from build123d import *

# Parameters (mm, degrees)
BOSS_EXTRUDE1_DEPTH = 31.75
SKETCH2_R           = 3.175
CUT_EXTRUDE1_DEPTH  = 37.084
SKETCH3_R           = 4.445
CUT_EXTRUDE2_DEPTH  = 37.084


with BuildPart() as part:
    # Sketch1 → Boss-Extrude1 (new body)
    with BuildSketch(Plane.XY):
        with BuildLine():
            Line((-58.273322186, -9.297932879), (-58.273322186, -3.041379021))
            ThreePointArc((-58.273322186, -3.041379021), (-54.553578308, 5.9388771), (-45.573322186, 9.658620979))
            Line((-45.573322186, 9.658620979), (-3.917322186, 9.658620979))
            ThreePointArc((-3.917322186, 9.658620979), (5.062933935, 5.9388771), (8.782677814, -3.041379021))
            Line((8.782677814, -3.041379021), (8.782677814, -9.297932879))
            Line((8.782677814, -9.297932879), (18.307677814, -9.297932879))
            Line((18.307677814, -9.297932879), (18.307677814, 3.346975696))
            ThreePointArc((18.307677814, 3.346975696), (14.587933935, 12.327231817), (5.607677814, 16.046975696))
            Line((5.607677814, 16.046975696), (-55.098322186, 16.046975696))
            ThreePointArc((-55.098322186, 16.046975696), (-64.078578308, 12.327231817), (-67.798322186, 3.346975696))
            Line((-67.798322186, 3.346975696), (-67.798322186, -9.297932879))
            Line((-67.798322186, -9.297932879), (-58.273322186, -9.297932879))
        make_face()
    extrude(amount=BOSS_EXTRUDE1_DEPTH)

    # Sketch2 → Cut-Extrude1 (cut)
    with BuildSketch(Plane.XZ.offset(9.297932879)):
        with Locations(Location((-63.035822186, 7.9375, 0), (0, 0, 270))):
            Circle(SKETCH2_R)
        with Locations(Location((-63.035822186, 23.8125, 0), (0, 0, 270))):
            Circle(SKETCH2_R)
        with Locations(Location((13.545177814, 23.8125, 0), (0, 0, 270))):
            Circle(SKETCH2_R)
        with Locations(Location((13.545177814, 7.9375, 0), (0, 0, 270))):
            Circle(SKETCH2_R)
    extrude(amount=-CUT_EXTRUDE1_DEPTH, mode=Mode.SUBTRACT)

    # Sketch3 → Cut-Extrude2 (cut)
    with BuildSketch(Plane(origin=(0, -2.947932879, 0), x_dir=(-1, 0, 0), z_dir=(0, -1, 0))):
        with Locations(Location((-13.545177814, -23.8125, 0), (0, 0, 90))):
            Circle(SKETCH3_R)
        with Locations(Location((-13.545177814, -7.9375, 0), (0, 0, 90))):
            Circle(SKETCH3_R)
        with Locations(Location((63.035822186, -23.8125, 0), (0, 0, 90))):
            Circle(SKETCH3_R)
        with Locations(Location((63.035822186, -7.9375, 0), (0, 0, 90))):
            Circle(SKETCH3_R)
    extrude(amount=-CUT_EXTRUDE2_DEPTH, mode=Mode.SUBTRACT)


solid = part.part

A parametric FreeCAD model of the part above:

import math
import FreeCAD as App
import Part
import Sketcher
from FreeCAD import Vector
Q = App.Units.Quantity

doc = App.newDocument("Part")
body = doc.addObject("PartDesign::Body", "Body")

# Sketch on XY plane
sketch1 = body.newObject("Sketcher::SketchObject", "Sketch")
sketch1.AttachmentSupport = (doc.getObject("XY_Plane"), [""])
sketch1.MapMode = "FlatFace"
sketch1.addGeometry([
    Part.LineSegment(Vector(-58, -9, 0), Vector(-58, -3, 0)),  # 0
    Part.ArcOfCircle(Part.Circle(Vector(-46, -3, 0), Vector(0, 0, 1), 13), math.radians(90), math.radians(180)),  # 1
    Part.LineSegment(Vector(-46, 10, 0), Vector(-4, 10, 0)),  # 2
    Part.ArcOfCircle(Part.Circle(Vector(-4, -3, 0), Vector(0, 0, 1), 13), math.radians(0), math.radians(90)),  # 3
    Part.LineSegment(Vector(9, -3, 0), Vector(9, -9, 0)),  # 4
    Part.LineSegment(Vector(9, -9, 0), Vector(18, -9, 0)),  # 5
    Part.LineSegment(Vector(18, -9, 0), Vector(18, 3, 0)),  # 6
    Part.ArcOfCircle(Part.Circle(Vector(6, 3, 0), Vector(0, 0, 1), 13), math.radians(0), math.radians(90)),  # 7
    Part.LineSegment(Vector(6, 16, 0), Vector(-55, 16, 0)),  # 8
    Part.ArcOfCircle(Part.Circle(Vector(-55, 3, 0), Vector(0, 0, 1), 13), math.radians(90), math.radians(180)),  # 9
    Part.LineSegment(Vector(-68, 3, 0), Vector(-68, -9, 0)),  # 10
    Part.LineSegment(Vector(-68, -9, 0), Vector(-58, -9, 0)),  # 11
], False)
sketch1.addConstraint([
    Sketcher.Constraint("Tangent", 0, 2, 1, 2),
    Sketcher.Constraint("Tangent", 1, 1, 2, 1),
    Sketcher.Constraint("Tangent", 2, 2, 3, 2),
    Sketcher.Constraint("Tangent", 3, 1, 4, 1),
    Sketcher.Constraint("Coincident", 4, 2, 5, 1),
    Sketcher.Constraint("Coincident", 5, 2, 6, 1),
    Sketcher.Constraint("Tangent", 6, 2, 7, 1),
    Sketcher.Constraint("Tangent", 7, 2, 8, 1),
    Sketcher.Constraint("Tangent", 8, 2, 9, 1),
    Sketcher.Constraint("Tangent", 9, 2, 10, 1),
    Sketcher.Constraint("Coincident", 10, 2, 11, 1),
    Sketcher.Constraint("Coincident", 11, 2, 0, 1),
    Sketcher.Constraint("Vertical", 0),
    Sketcher.Constraint("Horizontal", 2),
    Sketcher.Constraint("Vertical", 4),
    Sketcher.Constraint("Horizontal", 5),
    Sketcher.Constraint("Vertical", 6),
    Sketcher.Constraint("Horizontal", 8),
    Sketcher.Constraint("Vertical", 10),
    Sketcher.Constraint("Horizontal", 11),
    Sketcher.Constraint("Equal", 1, 3),
    Sketcher.Constraint("Equal", 3, 7),
    Sketcher.Constraint("Equal", 7, 9),
    Sketcher.Constraint("Horizontal", 5, 2, 10, 2),
    Sketcher.Constraint("Equal", 5, 11),
    Sketcher.Constraint("Radius", 1, Q("0.5 in")),
    Sketcher.Constraint("DistanceX", 2, 1, 2, 2, Q("1.64 in")),
    Sketcher.Constraint("DistanceX", 8, 2, 8, 1, Q("2.39 in")),
    Sketcher.Constraint("DistanceY", 6, 1, 6, 2, Q("12.644909 mm")),
    Sketcher.Constraint("DistanceY", 0, 1, 0, 2, Q("6.256554 mm")),
    Sketcher.Constraint("DistanceY", 1, 3, -1, 1, Q("3.041379 mm")),
    Sketcher.Constraint("DistanceX", 1, 3, -1, 1, Q("45.573322 mm")),
])
pad1 = body.newObject("PartDesign::Pad", "Pad")
pad1.Profile = sketch1
pad1.Length = Q("1.25 in")

# Sketch on XZ plane
sketch2 = body.newObject("Sketcher::SketchObject", "Sketch001")
sketch2.AttachmentSupport = (doc.getObject("XZ_Plane"), [""])
sketch2.MapMode = "FlatFace"
sketch2.AttachmentOffset = App.Placement(Vector(0, 0, 9.297933), App.Rotation())
sketch2.addGeometry([
    Part.Circle(Vector(-63, 7.9, 0), Vector(0, 0, 1), 3.2),
    Part.Circle(Vector(-63, 23.8, 0), Vector(0, 0, 1), 3.2),
    Part.Circle(Vector(13.5, 23.8, 0), Vector(0, 0, 1), 3.2),
    Part.Circle(Vector(13.5, 7.9, 0), Vector(0, 0, 1), 3.2),
], False)
sketch2.addConstraint([
    Sketcher.Constraint("Equal", 0, 1),
    Sketcher.Constraint("Equal", 1, 2),
    Sketcher.Constraint("Equal", 2, 3),
    Sketcher.Constraint("Horizontal", 1, 3, 2, 3),
    Sketcher.Constraint("Horizontal", 0, 3, 3, 3),
    Sketcher.Constraint("Vertical", 0, 3, 1, 3),
    Sketcher.Constraint("Vertical", 2, 3, 3, 3),
    Sketcher.Constraint("Diameter", 0, Q("0.25 in")),
    Sketcher.Constraint("DistanceY", -1, 1, 0, 3, Q("0.3125 in")),
    Sketcher.Constraint("DistanceY", -1, 1, 1, 3, Q("0.9375 in")),
    Sketcher.Constraint("DistanceX", 1, 3, 2, 3, Q("3.015 in")),
    Sketcher.Constraint("DistanceX", 0, 3, -1, 1, Q("63.035822 mm")),
])
pocket1 = body.newObject("PartDesign::Pocket", "Pocket")
pocket1.Profile = sketch2
pocket1.Length = Q("1.46 in")

# Sketch on XZ plane
sketch3 = body.newObject("Sketcher::SketchObject", "Sketch002")
sketch3.AttachmentSupport = (doc.getObject("XZ_Plane"), [""])
sketch3.MapMode = "FlatFace"
sketch3.AttachmentOffset = App.Placement(Vector(0, 0, 2.947933), App.Rotation())
sketch3.addGeometry([
    Part.Circle(Vector(13.5, 23.8, 0), Vector(0, 0, 1), 4.4),
    Part.Circle(Vector(13.5, 7.9, 0), Vector(0, 0, 1), 4.4),
    Part.Circle(Vector(-63, 23.8, 0), Vector(0, 0, 1), 4.4),
    Part.Circle(Vector(-63, 7.9, 0), Vector(0, 0, 1), 4.4),
], False)
sketch3.addConstraint([
    Sketcher.Constraint("Equal", 0, 1),
    Sketcher.Constraint("Equal", 1, 2),
    Sketcher.Constraint("Equal", 2, 3),
    Sketcher.Constraint("Horizontal", 0, 3, 2, 3),
    Sketcher.Constraint("Horizontal", 1, 3, 3, 3),
    Sketcher.Constraint("Vertical", 0, 3, 1, 3),
    Sketcher.Constraint("Vertical", 2, 3, 3, 3),
    Sketcher.Constraint("Diameter", 0, Q("0.35 in")),
    Sketcher.Constraint("DistanceY", -1, 1, 0, 3, Q("0.9375 in")),
    Sketcher.Constraint("DistanceY", -1, 1, 1, 3, Q("0.3125 in")),
    Sketcher.Constraint("DistanceX", 2, 3, 0, 3, Q("3.015 in")),
    Sketcher.Constraint("DistanceX", -1, 1, 0, 3, Q("13.545178 mm")),
])
pocket2 = body.newObject("PartDesign::Pocket", "Pocket001")
pocket2.Profile = sketch3
pocket2.Length = Q("1.46 in")

doc.recompute()
